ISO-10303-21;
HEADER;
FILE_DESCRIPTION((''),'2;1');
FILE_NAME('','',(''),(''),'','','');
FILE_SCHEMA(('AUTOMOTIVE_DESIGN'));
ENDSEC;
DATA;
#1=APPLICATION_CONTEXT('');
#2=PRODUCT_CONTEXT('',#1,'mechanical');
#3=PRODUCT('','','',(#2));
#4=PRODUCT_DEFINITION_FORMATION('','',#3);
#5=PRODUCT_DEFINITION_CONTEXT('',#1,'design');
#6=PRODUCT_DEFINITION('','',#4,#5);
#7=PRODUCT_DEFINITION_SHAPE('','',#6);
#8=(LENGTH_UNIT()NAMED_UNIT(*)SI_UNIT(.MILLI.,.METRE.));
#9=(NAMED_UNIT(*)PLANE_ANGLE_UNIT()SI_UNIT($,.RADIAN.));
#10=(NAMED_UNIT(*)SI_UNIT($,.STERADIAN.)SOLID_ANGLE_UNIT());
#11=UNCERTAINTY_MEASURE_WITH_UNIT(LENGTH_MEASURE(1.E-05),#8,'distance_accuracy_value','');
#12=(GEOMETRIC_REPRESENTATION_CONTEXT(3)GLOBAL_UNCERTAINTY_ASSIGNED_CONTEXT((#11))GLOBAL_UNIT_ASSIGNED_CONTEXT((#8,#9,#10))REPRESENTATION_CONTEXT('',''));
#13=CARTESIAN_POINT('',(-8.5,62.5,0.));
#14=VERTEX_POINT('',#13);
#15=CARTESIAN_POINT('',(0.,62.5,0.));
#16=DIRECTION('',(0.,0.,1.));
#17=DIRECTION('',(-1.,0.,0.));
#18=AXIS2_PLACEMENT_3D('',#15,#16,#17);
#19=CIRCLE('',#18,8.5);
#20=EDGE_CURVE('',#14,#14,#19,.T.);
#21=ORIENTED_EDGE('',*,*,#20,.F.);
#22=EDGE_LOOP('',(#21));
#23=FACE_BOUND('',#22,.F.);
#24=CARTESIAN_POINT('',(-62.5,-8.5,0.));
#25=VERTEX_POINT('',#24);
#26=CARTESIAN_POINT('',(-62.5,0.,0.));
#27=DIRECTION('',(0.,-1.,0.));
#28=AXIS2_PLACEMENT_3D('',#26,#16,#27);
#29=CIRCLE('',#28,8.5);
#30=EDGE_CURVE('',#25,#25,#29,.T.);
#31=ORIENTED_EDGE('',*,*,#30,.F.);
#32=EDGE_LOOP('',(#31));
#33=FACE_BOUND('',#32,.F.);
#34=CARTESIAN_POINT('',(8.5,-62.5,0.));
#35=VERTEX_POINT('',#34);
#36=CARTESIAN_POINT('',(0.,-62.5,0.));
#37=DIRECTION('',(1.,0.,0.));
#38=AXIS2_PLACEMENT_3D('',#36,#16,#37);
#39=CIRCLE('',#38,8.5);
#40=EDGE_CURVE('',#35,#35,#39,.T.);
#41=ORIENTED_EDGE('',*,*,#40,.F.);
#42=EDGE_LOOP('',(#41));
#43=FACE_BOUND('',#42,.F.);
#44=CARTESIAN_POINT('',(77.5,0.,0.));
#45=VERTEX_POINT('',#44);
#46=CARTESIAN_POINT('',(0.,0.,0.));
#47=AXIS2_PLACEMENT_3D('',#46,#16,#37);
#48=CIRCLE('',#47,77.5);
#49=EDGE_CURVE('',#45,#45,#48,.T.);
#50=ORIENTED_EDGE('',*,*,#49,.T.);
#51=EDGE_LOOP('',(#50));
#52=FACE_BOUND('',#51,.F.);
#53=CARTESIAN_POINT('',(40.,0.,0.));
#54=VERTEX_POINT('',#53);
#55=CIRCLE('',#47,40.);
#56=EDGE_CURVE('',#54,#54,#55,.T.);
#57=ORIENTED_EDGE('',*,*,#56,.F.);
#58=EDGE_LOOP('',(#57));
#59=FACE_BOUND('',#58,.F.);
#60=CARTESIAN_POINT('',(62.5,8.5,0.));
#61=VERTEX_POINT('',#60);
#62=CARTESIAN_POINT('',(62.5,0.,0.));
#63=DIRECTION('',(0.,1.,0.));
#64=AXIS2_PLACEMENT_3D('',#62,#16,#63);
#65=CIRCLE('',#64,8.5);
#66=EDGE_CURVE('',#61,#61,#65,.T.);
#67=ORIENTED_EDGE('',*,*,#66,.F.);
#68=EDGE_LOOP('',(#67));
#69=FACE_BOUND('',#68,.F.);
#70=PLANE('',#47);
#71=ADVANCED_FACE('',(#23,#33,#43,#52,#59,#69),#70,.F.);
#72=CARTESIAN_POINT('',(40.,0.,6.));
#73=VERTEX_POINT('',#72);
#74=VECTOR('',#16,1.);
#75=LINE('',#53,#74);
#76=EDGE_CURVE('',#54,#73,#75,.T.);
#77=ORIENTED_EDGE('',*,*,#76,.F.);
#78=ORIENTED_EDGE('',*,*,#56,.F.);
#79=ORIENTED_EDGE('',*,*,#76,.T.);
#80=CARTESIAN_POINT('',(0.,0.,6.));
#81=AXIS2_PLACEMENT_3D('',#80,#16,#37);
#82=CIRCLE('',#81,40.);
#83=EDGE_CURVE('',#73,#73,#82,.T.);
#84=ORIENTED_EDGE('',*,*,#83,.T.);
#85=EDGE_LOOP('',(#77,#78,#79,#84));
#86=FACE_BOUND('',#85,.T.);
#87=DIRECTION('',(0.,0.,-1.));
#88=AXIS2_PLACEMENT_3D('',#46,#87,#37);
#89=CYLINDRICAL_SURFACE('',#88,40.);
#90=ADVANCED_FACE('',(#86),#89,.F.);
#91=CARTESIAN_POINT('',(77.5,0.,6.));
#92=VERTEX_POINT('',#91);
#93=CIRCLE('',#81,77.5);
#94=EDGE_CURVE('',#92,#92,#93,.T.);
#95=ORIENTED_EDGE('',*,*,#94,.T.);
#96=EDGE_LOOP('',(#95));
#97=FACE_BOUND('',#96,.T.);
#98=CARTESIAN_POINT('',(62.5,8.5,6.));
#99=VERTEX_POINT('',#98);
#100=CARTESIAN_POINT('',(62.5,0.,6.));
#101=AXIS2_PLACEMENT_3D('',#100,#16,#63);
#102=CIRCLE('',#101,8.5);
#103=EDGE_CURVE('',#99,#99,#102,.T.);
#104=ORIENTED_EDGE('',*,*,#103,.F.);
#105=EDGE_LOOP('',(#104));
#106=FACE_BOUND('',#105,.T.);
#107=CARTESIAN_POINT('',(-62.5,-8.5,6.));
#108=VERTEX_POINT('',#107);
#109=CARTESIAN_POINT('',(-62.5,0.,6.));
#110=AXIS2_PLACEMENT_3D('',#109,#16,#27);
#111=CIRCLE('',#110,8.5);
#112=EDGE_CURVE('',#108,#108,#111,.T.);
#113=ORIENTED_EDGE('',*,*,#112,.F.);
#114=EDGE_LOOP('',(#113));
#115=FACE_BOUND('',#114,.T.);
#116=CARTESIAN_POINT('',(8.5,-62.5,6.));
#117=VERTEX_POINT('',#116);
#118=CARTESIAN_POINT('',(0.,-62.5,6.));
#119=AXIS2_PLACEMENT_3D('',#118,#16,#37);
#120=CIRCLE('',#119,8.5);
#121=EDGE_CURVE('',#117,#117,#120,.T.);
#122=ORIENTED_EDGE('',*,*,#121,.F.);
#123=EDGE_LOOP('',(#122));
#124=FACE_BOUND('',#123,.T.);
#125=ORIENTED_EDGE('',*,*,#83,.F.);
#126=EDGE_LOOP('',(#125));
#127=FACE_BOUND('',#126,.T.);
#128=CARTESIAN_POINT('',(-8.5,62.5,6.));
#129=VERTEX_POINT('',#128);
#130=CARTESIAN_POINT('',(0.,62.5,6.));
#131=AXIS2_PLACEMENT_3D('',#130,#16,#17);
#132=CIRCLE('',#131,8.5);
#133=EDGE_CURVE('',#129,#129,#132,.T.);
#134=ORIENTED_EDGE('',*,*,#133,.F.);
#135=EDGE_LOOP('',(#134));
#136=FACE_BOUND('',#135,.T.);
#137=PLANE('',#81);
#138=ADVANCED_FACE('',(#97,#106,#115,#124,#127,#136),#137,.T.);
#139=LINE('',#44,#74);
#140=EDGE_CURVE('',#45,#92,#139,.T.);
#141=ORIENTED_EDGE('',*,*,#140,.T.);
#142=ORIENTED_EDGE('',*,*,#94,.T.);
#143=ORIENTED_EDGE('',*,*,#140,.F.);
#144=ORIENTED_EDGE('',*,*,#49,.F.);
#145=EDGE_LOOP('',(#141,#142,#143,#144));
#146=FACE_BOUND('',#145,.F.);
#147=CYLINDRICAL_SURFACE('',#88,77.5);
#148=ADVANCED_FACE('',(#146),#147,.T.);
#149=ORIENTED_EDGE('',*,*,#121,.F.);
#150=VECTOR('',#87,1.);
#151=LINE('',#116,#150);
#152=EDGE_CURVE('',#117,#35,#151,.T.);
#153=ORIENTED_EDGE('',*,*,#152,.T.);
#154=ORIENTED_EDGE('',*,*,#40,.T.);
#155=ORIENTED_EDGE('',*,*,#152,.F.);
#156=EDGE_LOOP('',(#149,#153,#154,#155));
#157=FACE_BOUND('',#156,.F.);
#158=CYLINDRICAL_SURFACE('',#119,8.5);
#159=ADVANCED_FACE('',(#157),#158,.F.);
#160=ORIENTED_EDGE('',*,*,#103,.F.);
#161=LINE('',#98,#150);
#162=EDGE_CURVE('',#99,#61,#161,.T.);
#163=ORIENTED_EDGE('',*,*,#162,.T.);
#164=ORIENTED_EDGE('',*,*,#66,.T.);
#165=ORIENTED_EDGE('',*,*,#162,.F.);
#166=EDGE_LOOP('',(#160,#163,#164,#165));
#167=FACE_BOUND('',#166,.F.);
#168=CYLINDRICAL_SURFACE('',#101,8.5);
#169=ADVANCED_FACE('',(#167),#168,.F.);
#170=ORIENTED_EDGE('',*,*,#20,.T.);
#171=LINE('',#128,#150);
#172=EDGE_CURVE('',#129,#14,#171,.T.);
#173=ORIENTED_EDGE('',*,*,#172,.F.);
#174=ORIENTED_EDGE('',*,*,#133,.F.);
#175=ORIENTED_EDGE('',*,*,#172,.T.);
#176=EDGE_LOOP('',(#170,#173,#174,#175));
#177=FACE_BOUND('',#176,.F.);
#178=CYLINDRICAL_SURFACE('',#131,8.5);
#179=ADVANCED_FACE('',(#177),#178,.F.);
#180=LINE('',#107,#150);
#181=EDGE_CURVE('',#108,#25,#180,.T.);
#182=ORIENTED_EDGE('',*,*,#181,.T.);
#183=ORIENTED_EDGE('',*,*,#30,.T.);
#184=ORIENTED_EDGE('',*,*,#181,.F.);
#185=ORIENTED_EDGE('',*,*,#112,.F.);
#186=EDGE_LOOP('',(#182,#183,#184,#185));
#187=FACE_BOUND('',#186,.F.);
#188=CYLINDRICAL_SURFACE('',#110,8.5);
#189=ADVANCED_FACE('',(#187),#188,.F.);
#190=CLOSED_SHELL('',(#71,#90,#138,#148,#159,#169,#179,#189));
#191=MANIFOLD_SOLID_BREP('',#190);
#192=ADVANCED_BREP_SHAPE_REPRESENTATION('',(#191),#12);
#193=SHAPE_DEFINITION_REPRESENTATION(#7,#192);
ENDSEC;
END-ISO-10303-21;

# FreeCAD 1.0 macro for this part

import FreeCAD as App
import Part
import Sketcher

doc = App.newDocument("Part")
body = doc.addObject("PartDesign::Body", "Body")

# Sketch on XY plane
sketch1 = doc.addObject("Sketcher::SketchObject", "Sketch")
body.addObject(sketch1)
sketch1.AttachmentSupport = (doc.XY_Plane, [""])
sketch1.MapMode = "FlatFace"
sketch1.addGeometry([
    Part.Circle(App.Vector(0, 0, 0), App.Vector(0, 0, 1), 77.5),
    Part.Circle(App.Vector(0, 0, 0), App.Vector(0, 0, 1), 40),
], False)
sketch1.addConstraint([
    Sketcher.Constraint("Coincident", 0, 3, -1, 1),
    Sketcher.Constraint("Coincident", 1, 3, -1, 1),
    Sketcher.Constraint("Diameter", 0, 155.0),
    Sketcher.Constraint("Diameter", 1, 80.0),
])
pad1 = doc.addObject("PartDesign::Pad", "Pad")
body.addObject(pad1)
pad1.Profile = sketch1
pad1.Length = 6

# Sketch on XY plane
sketch2 = doc.addObject("Sketcher::SketchObject", "Sketch001")
body.addObject(sketch2)
sketch2.AttachmentSupport = (doc.XY_Plane, [""])
sketch2.MapMode = "FlatFace"
sketch2.AttachmentOffset = App.Placement(App.Vector(0, 0, 6), App.Rotation())
sketch2.addGeometry(Part.Circle(App.Vector(0, -62.5, 0), App.Vector(0, 0, 1), 8.5), False)
sketch2.addConstraint([
    Sketcher.Constraint("PointOnObject", 0, 3, -2),
    Sketcher.Constraint("Diameter", 0, 17.0),
    Sketcher.Constraint("DistanceY", 0, 3, -1, 1, 62.5),
])
pocket1 = doc.addObject("PartDesign::Pocket", "Pocket")
body.addObject(pocket1)
pocket1.Profile = sketch2
pocket1.Length = 6
doc.recompute()

polarpattern = doc.addObject("PartDesign::PolarPattern", "PolarPattern")
body.addObject(polarpattern)
polarpattern.Originals = [pocket1]
polarpattern.Axis = (doc.Z_Axis, [""])
polarpattern.Angle = 360
polarpattern.Occurrences = 4
body.Tip = polarpattern

doc.recompute()
